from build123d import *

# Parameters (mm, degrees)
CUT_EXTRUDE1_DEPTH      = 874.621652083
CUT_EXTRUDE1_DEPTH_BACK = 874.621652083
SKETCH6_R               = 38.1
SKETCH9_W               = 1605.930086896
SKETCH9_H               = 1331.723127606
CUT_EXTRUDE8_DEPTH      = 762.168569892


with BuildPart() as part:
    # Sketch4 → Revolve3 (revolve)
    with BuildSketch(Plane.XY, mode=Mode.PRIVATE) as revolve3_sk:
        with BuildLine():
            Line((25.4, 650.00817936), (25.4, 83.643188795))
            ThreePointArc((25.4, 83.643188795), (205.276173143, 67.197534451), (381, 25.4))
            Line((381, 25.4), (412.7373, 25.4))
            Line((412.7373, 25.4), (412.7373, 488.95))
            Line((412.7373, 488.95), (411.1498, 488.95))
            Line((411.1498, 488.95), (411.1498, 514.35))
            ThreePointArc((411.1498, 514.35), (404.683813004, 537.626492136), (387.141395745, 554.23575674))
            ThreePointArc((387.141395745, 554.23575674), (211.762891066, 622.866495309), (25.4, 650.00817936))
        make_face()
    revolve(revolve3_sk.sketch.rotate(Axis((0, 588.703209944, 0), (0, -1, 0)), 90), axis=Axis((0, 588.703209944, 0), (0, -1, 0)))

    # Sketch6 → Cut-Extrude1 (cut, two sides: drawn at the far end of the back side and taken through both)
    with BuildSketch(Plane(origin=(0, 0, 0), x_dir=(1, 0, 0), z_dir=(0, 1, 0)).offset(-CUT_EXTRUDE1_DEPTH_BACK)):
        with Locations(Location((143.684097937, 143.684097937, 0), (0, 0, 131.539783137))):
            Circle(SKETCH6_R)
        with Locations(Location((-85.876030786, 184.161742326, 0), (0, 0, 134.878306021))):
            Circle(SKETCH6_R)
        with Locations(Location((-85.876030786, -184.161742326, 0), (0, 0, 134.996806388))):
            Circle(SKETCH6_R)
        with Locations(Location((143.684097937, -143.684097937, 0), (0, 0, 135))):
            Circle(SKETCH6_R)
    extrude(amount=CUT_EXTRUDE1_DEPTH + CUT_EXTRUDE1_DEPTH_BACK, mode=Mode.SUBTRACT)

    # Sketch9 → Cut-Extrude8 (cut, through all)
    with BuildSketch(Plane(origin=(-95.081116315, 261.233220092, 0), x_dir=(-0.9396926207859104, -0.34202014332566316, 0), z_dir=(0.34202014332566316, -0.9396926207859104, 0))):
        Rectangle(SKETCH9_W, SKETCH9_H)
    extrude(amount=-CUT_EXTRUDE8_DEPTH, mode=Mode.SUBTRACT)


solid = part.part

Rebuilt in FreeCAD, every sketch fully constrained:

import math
import FreeCAD as App
import Part
import Sketcher
Q = App.Units.Quantity

doc = App.newDocument("Part")
body = doc.addObject("PartDesign::Body", "Body")

# Sketch on XY plane
sketch1 = body.newObject("Sketcher::SketchObject", "Sketch")
sketch1.AttachmentSupport = (doc.getObject("XY_Plane"), [""])
sketch1.MapMode = "FlatFace"
sketch1.addGeometry([
    Part.LineSegment(App.Vector(25.4, 650, 0), App.Vector(25.4, 83.6, 0)),  # 0
    Part.ArcOfCircle(Part.Circle(App.Vector(0, -1186.1, 0), App.Vector(0, 0, 1), 1270), math.radians(72.54), math.radians(88.85)),  # 1
    Part.LineSegment(App.Vector(381, 25.4, 0), App.Vector(412.7, 25.4, 0)),  # 2
    Part.LineSegment(App.Vector(412.7, 25.4, 0), App.Vector(412.7, 488.9, 0)),  # 3
    Part.LineSegment(App.Vector(412.7, 488.9, 0), App.Vector(411.1, 488.9, 0)),  # 4
    Part.LineSegment(App.Vector(411.1, 488.9, 0), App.Vector(411.1, 514.4, 0)),  # 5
    Part.ArcOfCircle(Part.Circle(App.Vector(366, 514.3, 0), App.Vector(0, 0, 1), 45.1), math.radians(0), math.radians(62)),  # 6
    Part.ArcOfCircle(Part.Circle(App.Vector(0.3, -176, 0), App.Vector(0, 0, 1), 826.4), math.radians(62), math.radians(88)),  # 7
], False)
sketch1.addConstraint([
    Sketcher.Constraint("Coincident", 0, 2, 1, 2),
    Sketcher.Constraint("Coincident", 1, 1, 2, 1),
    Sketcher.Constraint("Coincident", 2, 2, 3, 1),
    Sketcher.Constraint("Coincident", 3, 2, 4, 1),
    Sketcher.Constraint("Coincident", 4, 2, 5, 1),
    Sketcher.Constraint("Coincident", 5, 2, 6, 1),
    Sketcher.Constraint("Tangent", 6, 2, 7, 1),
    Sketcher.Constraint("Coincident", 7, 2, 0, 1),
    Sketcher.Constraint("Vertical", 0),
    Sketcher.Constraint("Horizontal", 2),
    Sketcher.Constraint("Vertical", 3),
    Sketcher.Constraint("Horizontal", 4),
    Sketcher.Constraint("Vertical", 5),
    Sketcher.Constraint("PointOnObject", 1, 3, -2),
    Sketcher.Constraint("Radius", 1, Q("50 in")),
    Sketcher.Constraint("DistanceY", 5, 1, 5, 2, Q("1 in")),
    Sketcher.Constraint("DistanceX", -1, 1, 0, 2, Q("1 in")),
    Sketcher.Constraint("DistanceY", -1, 1, 2, 2, Q("1 in")),
    Sketcher.Constraint("DistanceY", 3, 1, 3, 2, Q("18.25 in")),
    Sketcher.Constraint("DistanceX", 4, 2, 4, 1, Q("0.0625 in")),
    Sketcher.Constraint("DistanceX", 2, 1, 2, 2, Q("1.2495 in")),
    Sketcher.Constraint("DistanceX", -1, 1, 4, 2, Q("16.187 in")),
    Sketcher.Constraint("Radius", 6, 45.141825),
    Sketcher.Constraint("Radius", 7, 826.398662),
    Sketcher.Constraint("DistanceY", 0, 2, 0, 1, 566.364991),
    Sketcher.Constraint("DistanceX", -1, 1, 7, 3, 0.25782),
])
revolution = body.newObject("PartDesign::Revolution", "Revolution")
revolution.Profile = sketch1
revolution.ReferenceAxis = (sketch1, ["V_Axis"])
revolution.Angle = 360

# Sketch on XZ plane
sketch2 = body.newObject("Sketcher::SketchObject", "Sketch001")
sketch2.AttachmentSupport = (doc.getObject("XZ_Plane"), [""])
sketch2.MapMode = "FlatFace"
sketch2.addGeometry([
    Part.Circle(App.Vector(144, -144, 0), App.Vector(0, 0, 1), 38),
    Part.Circle(App.Vector(-86, -184, 0), App.Vector(0, 0, 1), 38),
    Part.Circle(App.Vector(-86, 184, 0), App.Vector(0, 0, 1), 38),
    Part.Circle(App.Vector(144, 144, 0), App.Vector(0, 0, 1), 38),
], False)
sketch2.addConstraint([
    Sketcher.Constraint("Equal", 0, 1),
    Sketcher.Constraint("Equal", 1, 2),
    Sketcher.Constraint("Equal", 2, 3),
    Sketcher.Constraint("Symmetric", 1, 3, 2, 3, -1),
    Sketcher.Constraint("Symmetric", 0, 3, 3, 3, -1),
    Sketcher.Constraint("Diameter", 0, Q("3 in")),
    Sketcher.Constraint("DistanceX", 1, 3, -1, 1, 85.876031),
    Sketcher.Constraint("DistanceX", 1, 3, 0, 3, 229.560129),
    Sketcher.Constraint("DistanceY", 0, 3, 2, 3, 327.84584),
    Sketcher.Constraint("DistanceY", 0, 3, -1, 1, 143.684098),
])
pocket1 = body.newObject("PartDesign::Pocket", "Pocket")
pocket1.Profile = sketch2
pocket1.Type = "ThroughAll"
pocket1.Midplane = True

# Sketch on an angled plane
sketch3 = body.newObject("Sketcher::SketchObject", "Sketch002")
sketch3.Placement = App.Placement(App.Vector(-95.081116, 261.23322, 0), App.Rotation(App.Vector(-0.939692621, -0.342020143, 0), App.Vector(0, 0, -1), App.Vector(0.342020143, -0.939692621, 0), "ZXY"))
sketch3.addGeometry([
    Part.LineSegment(App.Vector(-803, 666, 0), App.Vector(-803, -666, 0)),
    Part.LineSegment(App.Vector(-803, -666, 0), App.Vector(803, -666, 0)),
    Part.LineSegment(App.Vector(803, -666, 0), App.Vector(803, 666, 0)),
    Part.LineSegment(App.Vector(803, 666, 0), App.Vector(-803, 666, 0)),
], False)
sketch3.addConstraint([
    Sketcher.Constraint("Coincident", 0, 2, 1, 1),
    Sketcher.Constraint("Coincident", 1, 2, 2, 1),
    Sketcher.Constraint("Coincident", 2, 2, 3, 1),
    Sketcher.Constraint("Coincident", 3, 2, 0, 1),
    Sketcher.Constraint("Vertical", 0),
    Sketcher.Constraint("Horizontal", 1),
    Sketcher.Constraint("Vertical", 2),
    Sketcher.Constraint("Horizontal", 3),
    Sketcher.Constraint("Symmetric", 0, 2, 2, 2, -1, 1),
    Sketcher.Constraint("DistanceY", 0, 2, 0, 1, 1331.723128),
    Sketcher.Constraint("DistanceX", 1, 1, 1, 2, 1605.930087),
])
pocket2 = body.newObject("PartDesign::Pocket", "Pocket001")
pocket2.Profile = sketch3
pocket2.Type = "ThroughAll"

doc.recompute()
